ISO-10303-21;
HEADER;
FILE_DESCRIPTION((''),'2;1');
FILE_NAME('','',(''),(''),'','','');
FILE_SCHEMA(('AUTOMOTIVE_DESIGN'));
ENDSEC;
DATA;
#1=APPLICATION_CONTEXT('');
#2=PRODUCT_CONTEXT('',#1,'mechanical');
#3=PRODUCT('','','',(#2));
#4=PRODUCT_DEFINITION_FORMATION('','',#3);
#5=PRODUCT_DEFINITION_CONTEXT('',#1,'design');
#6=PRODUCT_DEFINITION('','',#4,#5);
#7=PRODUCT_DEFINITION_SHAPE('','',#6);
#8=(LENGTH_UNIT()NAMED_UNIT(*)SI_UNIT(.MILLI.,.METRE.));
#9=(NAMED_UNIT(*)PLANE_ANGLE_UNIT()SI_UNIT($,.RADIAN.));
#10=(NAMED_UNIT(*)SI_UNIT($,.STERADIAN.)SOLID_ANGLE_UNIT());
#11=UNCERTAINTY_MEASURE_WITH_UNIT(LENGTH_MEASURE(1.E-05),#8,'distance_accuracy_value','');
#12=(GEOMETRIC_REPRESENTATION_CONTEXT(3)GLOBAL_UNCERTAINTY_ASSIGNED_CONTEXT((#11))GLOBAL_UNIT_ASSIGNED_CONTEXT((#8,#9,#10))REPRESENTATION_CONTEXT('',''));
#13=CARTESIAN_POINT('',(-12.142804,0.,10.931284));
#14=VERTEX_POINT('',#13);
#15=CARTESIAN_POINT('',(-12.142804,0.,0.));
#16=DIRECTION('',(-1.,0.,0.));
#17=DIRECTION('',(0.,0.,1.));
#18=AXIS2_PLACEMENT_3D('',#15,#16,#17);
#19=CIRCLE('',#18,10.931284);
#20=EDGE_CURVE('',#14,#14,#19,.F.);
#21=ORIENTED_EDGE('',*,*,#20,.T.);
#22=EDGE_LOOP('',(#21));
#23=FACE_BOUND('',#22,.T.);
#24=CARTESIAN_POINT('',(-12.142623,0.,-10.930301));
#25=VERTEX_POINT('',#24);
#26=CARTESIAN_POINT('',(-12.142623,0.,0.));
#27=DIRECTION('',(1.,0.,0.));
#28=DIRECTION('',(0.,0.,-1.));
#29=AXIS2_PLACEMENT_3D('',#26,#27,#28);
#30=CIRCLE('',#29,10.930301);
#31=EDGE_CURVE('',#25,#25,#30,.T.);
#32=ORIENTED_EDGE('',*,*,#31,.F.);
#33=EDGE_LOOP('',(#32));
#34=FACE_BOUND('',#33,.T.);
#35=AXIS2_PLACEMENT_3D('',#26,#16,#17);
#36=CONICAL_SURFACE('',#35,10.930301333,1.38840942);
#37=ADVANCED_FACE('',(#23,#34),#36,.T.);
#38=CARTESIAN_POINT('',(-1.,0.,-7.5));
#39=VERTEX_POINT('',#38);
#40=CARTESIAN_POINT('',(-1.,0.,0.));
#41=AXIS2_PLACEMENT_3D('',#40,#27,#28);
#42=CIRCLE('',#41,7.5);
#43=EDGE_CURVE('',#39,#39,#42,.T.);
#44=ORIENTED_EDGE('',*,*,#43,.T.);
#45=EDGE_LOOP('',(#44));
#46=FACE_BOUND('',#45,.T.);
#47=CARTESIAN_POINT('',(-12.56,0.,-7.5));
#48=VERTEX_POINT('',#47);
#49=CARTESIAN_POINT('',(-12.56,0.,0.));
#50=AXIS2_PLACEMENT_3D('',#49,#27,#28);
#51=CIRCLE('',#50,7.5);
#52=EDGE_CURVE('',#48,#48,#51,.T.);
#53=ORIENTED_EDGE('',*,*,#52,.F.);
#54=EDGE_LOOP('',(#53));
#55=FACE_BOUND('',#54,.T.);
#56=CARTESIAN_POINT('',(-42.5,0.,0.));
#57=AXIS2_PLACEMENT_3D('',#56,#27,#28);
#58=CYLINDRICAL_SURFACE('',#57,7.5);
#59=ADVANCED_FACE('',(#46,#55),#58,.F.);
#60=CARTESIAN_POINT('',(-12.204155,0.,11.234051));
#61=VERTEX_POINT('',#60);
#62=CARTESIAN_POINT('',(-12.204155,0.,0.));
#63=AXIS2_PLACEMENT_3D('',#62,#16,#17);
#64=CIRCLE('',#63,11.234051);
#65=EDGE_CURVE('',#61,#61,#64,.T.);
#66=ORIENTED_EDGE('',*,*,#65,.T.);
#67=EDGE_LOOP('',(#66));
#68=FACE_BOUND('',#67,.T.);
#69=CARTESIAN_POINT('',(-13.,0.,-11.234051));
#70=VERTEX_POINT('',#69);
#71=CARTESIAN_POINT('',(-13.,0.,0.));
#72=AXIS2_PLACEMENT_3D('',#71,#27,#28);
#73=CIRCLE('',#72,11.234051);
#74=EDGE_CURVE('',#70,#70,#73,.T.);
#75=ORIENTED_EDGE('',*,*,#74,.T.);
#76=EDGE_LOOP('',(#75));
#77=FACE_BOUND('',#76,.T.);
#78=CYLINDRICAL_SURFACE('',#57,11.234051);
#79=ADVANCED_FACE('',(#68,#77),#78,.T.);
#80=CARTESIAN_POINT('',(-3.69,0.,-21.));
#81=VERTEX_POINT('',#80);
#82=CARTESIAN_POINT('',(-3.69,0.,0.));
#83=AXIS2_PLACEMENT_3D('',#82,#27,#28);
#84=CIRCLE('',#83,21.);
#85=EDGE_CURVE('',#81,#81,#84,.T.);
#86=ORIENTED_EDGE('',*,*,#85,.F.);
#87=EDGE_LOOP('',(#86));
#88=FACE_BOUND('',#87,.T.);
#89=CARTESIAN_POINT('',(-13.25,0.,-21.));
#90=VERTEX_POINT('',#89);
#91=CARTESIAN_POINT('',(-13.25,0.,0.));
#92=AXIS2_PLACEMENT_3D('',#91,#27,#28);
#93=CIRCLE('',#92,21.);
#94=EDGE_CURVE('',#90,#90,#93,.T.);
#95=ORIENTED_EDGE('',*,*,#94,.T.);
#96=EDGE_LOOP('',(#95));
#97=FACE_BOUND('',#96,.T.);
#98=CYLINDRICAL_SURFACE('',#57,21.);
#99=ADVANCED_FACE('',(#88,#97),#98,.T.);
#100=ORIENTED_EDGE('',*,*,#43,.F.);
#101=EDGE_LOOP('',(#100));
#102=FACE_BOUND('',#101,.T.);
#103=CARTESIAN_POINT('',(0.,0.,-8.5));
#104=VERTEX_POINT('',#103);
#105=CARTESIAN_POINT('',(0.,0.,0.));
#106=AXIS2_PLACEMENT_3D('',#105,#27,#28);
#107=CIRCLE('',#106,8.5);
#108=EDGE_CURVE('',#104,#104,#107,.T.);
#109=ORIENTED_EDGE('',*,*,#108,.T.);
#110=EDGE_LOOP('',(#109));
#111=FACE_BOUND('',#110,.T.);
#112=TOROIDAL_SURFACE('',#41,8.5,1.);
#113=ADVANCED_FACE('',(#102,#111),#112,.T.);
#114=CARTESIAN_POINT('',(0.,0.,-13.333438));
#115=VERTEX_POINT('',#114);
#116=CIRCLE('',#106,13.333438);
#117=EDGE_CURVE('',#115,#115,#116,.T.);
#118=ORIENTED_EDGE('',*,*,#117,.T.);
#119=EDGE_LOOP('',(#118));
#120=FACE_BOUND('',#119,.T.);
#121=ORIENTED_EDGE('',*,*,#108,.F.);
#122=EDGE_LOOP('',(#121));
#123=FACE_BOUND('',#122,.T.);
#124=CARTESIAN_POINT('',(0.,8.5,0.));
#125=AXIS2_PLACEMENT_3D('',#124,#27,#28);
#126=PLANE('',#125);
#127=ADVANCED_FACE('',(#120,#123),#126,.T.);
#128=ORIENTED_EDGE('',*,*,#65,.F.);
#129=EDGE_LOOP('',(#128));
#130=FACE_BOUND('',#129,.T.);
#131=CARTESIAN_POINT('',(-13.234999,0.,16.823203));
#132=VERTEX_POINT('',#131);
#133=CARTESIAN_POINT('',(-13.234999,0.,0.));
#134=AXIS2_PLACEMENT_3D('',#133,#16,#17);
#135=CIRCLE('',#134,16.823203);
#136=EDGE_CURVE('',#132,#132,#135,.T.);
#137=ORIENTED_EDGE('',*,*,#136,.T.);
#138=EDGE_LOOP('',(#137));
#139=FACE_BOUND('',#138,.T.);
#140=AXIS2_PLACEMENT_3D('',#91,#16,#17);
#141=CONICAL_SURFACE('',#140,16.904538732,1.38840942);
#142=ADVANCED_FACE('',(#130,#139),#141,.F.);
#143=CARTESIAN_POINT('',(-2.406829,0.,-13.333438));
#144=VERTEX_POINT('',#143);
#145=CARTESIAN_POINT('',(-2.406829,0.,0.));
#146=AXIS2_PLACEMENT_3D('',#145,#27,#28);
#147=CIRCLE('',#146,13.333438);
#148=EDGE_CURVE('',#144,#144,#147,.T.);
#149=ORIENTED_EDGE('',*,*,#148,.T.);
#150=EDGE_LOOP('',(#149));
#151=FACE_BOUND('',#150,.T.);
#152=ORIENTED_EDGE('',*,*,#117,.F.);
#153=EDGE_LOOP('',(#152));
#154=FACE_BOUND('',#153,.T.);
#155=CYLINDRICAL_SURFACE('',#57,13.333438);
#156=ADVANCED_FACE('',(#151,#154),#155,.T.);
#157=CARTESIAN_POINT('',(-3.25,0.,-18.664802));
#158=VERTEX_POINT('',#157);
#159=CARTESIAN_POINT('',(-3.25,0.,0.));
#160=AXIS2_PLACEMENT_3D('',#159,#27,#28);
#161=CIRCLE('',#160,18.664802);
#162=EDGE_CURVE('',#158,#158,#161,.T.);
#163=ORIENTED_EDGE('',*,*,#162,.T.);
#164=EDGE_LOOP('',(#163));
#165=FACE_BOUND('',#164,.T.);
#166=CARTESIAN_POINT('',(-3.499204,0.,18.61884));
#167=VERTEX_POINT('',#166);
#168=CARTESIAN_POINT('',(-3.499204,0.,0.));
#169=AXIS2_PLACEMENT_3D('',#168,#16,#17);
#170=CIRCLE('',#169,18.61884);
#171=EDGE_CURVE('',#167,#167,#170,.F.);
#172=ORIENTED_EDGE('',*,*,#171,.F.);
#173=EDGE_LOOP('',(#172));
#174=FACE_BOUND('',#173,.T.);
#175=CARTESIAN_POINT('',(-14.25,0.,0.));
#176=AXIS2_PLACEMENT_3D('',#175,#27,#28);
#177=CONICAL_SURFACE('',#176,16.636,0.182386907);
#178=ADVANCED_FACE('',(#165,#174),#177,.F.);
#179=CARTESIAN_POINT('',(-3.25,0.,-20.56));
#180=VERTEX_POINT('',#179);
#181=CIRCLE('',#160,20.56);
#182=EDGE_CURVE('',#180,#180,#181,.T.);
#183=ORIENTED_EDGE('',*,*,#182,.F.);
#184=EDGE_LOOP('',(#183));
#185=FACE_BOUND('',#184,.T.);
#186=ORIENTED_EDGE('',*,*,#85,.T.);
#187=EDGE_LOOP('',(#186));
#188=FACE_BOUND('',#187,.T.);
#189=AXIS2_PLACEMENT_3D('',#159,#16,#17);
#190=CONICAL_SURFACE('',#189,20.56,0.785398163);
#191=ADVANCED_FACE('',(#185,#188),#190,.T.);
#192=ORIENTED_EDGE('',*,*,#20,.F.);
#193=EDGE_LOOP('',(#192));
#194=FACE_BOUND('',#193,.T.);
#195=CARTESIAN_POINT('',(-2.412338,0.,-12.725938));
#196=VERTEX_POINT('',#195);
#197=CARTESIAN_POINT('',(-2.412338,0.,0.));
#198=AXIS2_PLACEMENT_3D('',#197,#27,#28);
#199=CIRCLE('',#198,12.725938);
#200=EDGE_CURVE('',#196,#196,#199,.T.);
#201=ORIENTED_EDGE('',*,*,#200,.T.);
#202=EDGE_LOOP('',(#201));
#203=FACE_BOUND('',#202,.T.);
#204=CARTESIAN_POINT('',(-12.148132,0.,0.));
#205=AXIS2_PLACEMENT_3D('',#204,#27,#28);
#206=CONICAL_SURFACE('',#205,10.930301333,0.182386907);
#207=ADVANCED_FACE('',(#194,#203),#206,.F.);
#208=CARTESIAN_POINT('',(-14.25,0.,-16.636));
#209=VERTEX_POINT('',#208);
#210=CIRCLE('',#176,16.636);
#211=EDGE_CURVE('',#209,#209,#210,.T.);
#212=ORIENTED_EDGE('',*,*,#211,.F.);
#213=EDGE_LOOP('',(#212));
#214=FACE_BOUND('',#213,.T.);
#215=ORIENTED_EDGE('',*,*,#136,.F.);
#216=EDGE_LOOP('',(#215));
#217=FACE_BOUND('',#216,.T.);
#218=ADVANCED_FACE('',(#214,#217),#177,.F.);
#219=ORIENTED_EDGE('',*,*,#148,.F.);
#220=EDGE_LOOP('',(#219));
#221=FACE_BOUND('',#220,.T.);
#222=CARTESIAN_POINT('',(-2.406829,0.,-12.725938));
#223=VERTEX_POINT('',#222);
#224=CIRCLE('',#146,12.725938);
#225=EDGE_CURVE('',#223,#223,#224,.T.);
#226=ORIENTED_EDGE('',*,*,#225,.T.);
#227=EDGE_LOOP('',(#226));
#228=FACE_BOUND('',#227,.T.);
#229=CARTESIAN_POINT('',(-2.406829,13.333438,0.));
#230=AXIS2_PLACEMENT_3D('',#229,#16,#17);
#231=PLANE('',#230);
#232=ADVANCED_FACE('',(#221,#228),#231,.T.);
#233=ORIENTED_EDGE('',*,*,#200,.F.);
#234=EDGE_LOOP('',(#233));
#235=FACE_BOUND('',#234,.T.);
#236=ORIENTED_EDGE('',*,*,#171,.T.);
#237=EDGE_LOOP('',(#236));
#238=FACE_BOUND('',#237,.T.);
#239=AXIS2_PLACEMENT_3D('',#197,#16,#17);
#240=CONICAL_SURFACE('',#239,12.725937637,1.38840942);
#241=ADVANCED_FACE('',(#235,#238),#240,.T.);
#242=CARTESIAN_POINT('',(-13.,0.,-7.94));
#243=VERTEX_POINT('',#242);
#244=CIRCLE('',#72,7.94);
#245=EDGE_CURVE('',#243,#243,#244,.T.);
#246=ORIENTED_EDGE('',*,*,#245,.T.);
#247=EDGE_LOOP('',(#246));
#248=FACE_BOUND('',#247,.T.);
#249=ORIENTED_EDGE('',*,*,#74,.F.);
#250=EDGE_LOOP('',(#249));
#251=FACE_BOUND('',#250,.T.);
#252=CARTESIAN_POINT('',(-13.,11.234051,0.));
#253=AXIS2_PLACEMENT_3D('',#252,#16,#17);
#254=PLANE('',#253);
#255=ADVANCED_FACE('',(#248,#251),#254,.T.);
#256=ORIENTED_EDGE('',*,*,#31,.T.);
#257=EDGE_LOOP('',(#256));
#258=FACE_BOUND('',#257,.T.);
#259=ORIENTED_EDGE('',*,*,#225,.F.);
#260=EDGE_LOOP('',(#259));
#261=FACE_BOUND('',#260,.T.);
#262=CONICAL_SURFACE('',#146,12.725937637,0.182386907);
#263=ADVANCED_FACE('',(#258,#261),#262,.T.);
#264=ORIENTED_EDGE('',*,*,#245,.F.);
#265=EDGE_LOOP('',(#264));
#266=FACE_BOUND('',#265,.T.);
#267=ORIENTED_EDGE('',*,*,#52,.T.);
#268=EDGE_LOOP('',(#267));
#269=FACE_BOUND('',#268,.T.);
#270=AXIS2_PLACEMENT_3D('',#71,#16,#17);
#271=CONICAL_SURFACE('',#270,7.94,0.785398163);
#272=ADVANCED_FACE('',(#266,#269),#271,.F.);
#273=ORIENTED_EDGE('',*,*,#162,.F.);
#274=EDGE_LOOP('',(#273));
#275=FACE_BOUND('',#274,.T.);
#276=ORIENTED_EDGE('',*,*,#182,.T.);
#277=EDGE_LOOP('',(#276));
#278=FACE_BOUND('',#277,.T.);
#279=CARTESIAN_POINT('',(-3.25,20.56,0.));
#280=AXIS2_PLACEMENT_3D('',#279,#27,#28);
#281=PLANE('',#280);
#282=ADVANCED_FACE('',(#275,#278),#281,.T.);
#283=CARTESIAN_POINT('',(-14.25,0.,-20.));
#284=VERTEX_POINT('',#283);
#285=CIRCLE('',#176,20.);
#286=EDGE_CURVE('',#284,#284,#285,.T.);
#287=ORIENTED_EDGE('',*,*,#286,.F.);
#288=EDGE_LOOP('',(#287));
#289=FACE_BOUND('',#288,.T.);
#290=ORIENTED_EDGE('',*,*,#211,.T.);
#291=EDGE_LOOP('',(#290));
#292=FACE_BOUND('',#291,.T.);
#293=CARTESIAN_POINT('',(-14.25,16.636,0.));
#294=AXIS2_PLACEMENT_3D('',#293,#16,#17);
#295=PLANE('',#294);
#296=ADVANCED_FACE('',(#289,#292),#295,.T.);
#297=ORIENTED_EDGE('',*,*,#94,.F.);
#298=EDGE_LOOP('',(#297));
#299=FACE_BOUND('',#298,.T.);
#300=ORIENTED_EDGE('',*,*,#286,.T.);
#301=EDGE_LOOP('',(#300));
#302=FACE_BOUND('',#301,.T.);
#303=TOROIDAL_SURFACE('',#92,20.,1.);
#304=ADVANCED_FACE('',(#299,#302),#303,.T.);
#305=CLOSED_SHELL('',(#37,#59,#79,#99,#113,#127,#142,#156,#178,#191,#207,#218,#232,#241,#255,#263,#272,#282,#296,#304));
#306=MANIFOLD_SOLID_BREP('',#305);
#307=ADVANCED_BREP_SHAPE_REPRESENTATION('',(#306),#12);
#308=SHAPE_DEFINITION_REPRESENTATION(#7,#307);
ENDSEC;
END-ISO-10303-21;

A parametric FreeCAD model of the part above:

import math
import FreeCAD as App
import Part
import Sketcher

V = App.Vector
Q = App.Units.Quantity

doc = App.newDocument("Part")
params = doc.addObject("Spreadsheet::Sheet", "Params")
for row, (alias, value) in enumerate([
    ("sketch1_radius", "1 mm"),
    ("sketch1_width", "9.56 mm"),
    ("revolution_angle", "360 deg"),
    ("sketch2_length", "9.9 mm"),
    ("revolution2_angle", "360 deg"),
    ("sketch3_radius", "1 mm"),
    ("sketch3_length", "9.9 mm"),
    ("sketch3_width", "11.56 mm"),
    ("revolution3_angle", "360 deg"),
], start=1):
    params.set(f"A{row}", alias)
    params.set(f"B{row}", "=" + value)
    params.setAlias(f"B{row}", alias)

body = doc.addObject("PartDesign::Body", "Body")

# Sketch on XY plane
sketch1 = doc.addObject("Sketcher::SketchObject", "Sketch")
body.addObject(sketch1)
sketch1.AttachmentSupport = (doc.XY_Plane, [""])
sketch1.MapMode = "FlatFace"
sketch1.addGeometry([
    Part.LineSegment(V(-14.2, 16.6, 0), V(-3.2, 18.7, 0)),  # 0
    Part.LineSegment(V(-3.2, 18.7, 0), V(-3.2, 20.6, 0)),  # 1
    Part.LineSegment(V(-3.2, 20.6, 0), V(-3.7, 21, 0)),  # 2
    Part.LineSegment(V(-3.7, 21, 0), V(-13.2, 21, 0)),  # 3
    Part.ArcOfCircle(Part.Circle(V(-13.2, 20, 0), V(0, 0, 1), 1), math.radians(90), math.radians(180)),  # 4
    Part.LineSegment(V(-14.2, 20, 0), V(-14.2, 16.6, 0)),  # 5
], False)
sketch1.addConstraint([
    Sketcher.Constraint("Coincident", 0, 2, 1, 1),
    Sketcher.Constraint("Coincident", 1, 2, 2, 1),
    Sketcher.Constraint("Coincident", 2, 2, 3, 1),
    Sketcher.Constraint("Tangent", 3, 2, 4, 1),
    Sketcher.Constraint("Tangent", 4, 2, 5, 1),
    Sketcher.Constraint("Coincident", 5, 2, 0, 1),
    Sketcher.Constraint("Vertical", 1),
    Sketcher.Constraint("Horizontal", 3),
    Sketcher.Constraint("Vertical", 5),
    Sketcher.Constraint("Radius", 4, Q("1 mm")),
    Sketcher.Constraint("Angle", 2, Q("135 deg")),
    Sketcher.Constraint("DistanceY", -1, 1, 4, 3, Q("20 mm")),
    Sketcher.Constraint("DistanceX", 4, 3, 0, 2, Q("10 mm")),
    Sketcher.Constraint("DistanceX", 3, 2, 3, 1, Q("9.56 mm")),
    Sketcher.Constraint("Angle", 0, Q("10.45 deg")),
    Sketcher.Constraint("DistanceY", 5, 2, 5, 1, Q("3.364 mm")),
    Sketcher.Constraint("DistanceX", 4, 3, -1, 1, Q("13.25 mm")),
])
sketch1.setExpression("Constraints[9]", "Params.sketch1_radius")
sketch1.setExpression("Constraints[13]", "Params.sketch1_width")
revolution = doc.addObject("PartDesign::Revolution", "Revolution")
body.addObject(revolution)
revolution.Profile = sketch1
revolution.ReferenceAxis = (sketch1, ["H_Axis"])
revolution.setExpression("Angle", "Params.revolution_angle")

# Sketch on XY plane
sketch2 = doc.addObject("Sketcher::SketchObject", "Sketch001")
body.addObject(sketch2)
sketch2.AttachmentSupport = (doc.XY_Plane, [""])
sketch2.MapMode = "FlatFace"
sketch2.addGeometry([
    Part.LineSegment(V(-4, 19, 0), V(-13, 17, 0)),
    Part.LineSegment(V(-13, 17, 0), V(-12, 11, 0)),
    Part.LineSegment(V(-12, 11, 0), V(-2, 13, 0)),
    Part.LineSegment(V(-2, 13, 0), V(-4, 19, 0)),
], False)
sketch2.addConstraint([
    Sketcher.Constraint("Coincident", 0, 2, 1, 1),
    Sketcher.Constraint("Coincident", 1, 2, 2, 1),
    Sketcher.Constraint("Coincident", 2, 2, 3, 1),
    Sketcher.Constraint("Coincident", 3, 2, 0, 1),
    Sketcher.Constraint("Perpendicular", 0, 1),
    Sketcher.Constraint("Perpendicular", 1, 2),
    Sketcher.Constraint("Perpendicular", 2, 3),
    Sketcher.Constraint("Distance", 0, Q("9.9 mm")),
    Sketcher.Constraint("Angle", 0, Q("-169.55 deg")),
    Sketcher.Constraint("DistanceX", 0, 2, -1, 1, Q("13.25 mm")),
    Sketcher.Constraint("Distance", 1, Q("6.075 mm")),
    Sketcher.Constraint("DistanceY", -1, 1, 1, 2, Q("10.930301 mm")),
])
sketch2.setExpression("Constraints[7]", "Params.sketch2_length")
revolution2 = doc.addObject("PartDesign::Revolution", "Revolution001")
body.addObject(revolution2)
revolution2.Profile = sketch2
revolution2.ReferenceAxis = (sketch2, ["H_Axis"])
revolution2.setExpression("Angle", "Params.revolution2_angle")

# Sketch on XY plane
sketch3 = doc.addObject("Sketcher::SketchObject", "Sketch002")
body.addObject(sketch3)
sketch3.AttachmentSupport = (doc.XY_Plane, [""])
sketch3.MapMode = "FlatFace"
sketch3.addGeometry([
    Part.LineSegment(V(-12.2, 11.23, 0), V(-13, 11.23, 0)),  # 0
    Part.LineSegment(V(-13, 11.23, 0), V(-13, 7.94, 0)),  # 1
    Part.LineSegment(V(-13, 7.94, 0), V(-12.56, 7.5, 0)),  # 2
    Part.LineSegment(V(-12.56, 7.5, 0), V(-1, 7.5, 0)),  # 3
    Part.ArcOfCircle(Part.Circle(V(-1, 8.5, 0), V(0, 0, 1), 1), math.radians(-90), math.radians(0)),  # 4
    Part.LineSegment(V(0, 8.5, 0), V(0, 13.33, 0)),  # 5
    Part.LineSegment(V(0, 13.33, 0), V(-2.41, 13.33, 0)),  # 6
    Part.LineSegment(V(-2.41, 13.33, 0), V(-2.41, 12.73, 0)),  # 7
    Part.LineSegment(V(-2.41, 12.73, 0), V(-12.14, 10.93, 0)),  # 8
    Part.LineSegment(V(-12.14, 10.93, 0), V(-12.2, 11.23, 0)),  # 9
], False)
sketch3.addConstraint([
    Sketcher.Constraint("Coincident", 0, 2, 1, 1),
    Sketcher.Constraint("Coincident", 1, 2, 2, 1),
    Sketcher.Constraint("Coincident", 2, 2, 3, 1),
    Sketcher.Constraint("Tangent", 3, 2, 4, 1),
    Sketcher.Constraint("Tangent", 4, 2, 5, 1),
    Sketcher.Constraint("Coincident", 5, 2, 6, 1),
    Sketcher.Constraint("Coincident", 6, 2, 7, 1),
    Sketcher.Constraint("Coincident", 7, 2, 8, 1),
    Sketcher.Constraint("Coincident", 8, 2, 9, 1),
    Sketcher.Constraint("Coincident", 9, 2, 0, 1),
    Sketcher.Constraint("Horizontal", 0),
    Sketcher.Constraint("Vertical", 1),
    Sketcher.Constraint("Horizontal", 3),
    Sketcher.Constraint("Vertical", 5),
    Sketcher.Constraint("Horizontal", 6),
    Sketcher.Constraint("Vertical", 7),
    Sketcher.Constraint("PointOnObject", 4, 2, -2),
    Sketcher.Constraint("Perpendicular", 8, 9),
    Sketcher.Constraint("Radius", 4, Q("1 mm")),
    Sketcher.Constraint("Angle", 2, Q("-45 deg")),
    Sketcher.Constraint("DistanceX", 0, 2, -1, 1, Q("13 mm")),
    Sketcher.Constraint("Distance", 8, Q("9.9 mm")),
    Sketcher.Constraint("DistanceX", 3, 1, 3, 2, Q("11.56 mm")),
    Sketcher.Constraint("DistanceY", -1, 1, 4, 3, Q("8.5 mm")),
    Sketcher.Constraint("Angle", 8, Q("-169.55 deg")),
    Sketcher.Constraint("DistanceY", 7, 2, 7, 1, Q("0.6075 mm")),
    Sketcher.Constraint("DistanceX", 6, 2, 6, 1, Q("2.406829 mm")),
    Sketcher.Constraint("DistanceY", 1, 2, 1, 1, Q("3.294051 mm")),
    Sketcher.Constraint("DistanceY", -1, 1, 8, 2, Q("10.930301 mm")),
])
sketch3.setExpression("Constraints[18]", "Params.sketch3_radius")
sketch3.setExpression("Constraints[21]", "Params.sketch3_length")
sketch3.setExpression("Constraints[22]", "Params.sketch3_width")
revolution3 = doc.addObject("PartDesign::Revolution", "Revolution002")
body.addObject(revolution3)
revolution3.Profile = sketch3
revolution3.ReferenceAxis = (sketch3, ["H_Axis"])
revolution3.setExpression("Angle", "Params.revolution3_angle")

doc.recompute()
